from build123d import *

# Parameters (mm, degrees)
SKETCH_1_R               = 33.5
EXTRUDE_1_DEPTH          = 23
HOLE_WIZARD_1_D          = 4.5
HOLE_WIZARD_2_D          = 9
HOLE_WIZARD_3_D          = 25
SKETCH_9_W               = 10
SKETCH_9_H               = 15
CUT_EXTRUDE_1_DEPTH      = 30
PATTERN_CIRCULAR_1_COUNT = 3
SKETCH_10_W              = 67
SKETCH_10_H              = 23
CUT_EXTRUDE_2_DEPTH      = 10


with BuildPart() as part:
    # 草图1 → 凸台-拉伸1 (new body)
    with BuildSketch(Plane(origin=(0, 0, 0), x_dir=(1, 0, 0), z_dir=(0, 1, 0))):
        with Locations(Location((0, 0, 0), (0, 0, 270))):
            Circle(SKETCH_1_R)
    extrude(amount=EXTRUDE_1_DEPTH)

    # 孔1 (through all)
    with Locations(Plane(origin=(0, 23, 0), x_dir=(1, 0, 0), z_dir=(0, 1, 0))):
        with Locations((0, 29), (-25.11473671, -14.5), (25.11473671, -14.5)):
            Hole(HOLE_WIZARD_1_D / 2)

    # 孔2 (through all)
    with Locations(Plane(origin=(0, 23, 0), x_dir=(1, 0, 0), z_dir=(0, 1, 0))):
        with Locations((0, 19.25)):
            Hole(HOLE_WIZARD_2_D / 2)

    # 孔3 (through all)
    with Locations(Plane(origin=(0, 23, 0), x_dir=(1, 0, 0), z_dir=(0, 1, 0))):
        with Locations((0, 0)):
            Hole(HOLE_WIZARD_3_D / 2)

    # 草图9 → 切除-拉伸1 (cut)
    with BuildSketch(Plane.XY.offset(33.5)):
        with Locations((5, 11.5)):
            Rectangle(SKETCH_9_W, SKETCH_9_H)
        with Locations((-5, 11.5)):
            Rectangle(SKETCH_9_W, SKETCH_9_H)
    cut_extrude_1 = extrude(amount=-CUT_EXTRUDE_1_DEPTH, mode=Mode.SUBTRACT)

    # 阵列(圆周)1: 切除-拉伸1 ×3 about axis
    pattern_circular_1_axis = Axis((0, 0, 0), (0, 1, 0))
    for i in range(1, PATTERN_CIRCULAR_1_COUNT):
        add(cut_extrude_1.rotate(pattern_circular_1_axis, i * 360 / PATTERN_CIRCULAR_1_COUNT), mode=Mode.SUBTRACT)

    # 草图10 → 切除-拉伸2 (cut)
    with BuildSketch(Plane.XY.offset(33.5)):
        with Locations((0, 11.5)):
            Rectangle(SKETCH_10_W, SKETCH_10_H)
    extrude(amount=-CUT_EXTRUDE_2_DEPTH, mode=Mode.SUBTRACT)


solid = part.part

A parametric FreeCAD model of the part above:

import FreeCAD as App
import Part
import Sketcher

V = App.Vector
Q = App.Units.Quantity


def add_polygon(sketch, points):
    """Adds a closed chain of lines whose ends are joined by coincident constraints."""
    first, n = sketch.GeometryCount, len(points)
    for a, b in zip(points, points[1:] + points[:1]):
        sketch.addGeometry(Part.LineSegment(App.Vector(*a, 0), App.Vector(*b, 0)), False)
    for i in range(n):
        sketch.addConstraint(Sketcher.Constraint("Coincident", first + i, 2, first + (i + 1) % n, 1))

doc = App.newDocument("Part")
body = doc.addObject("PartDesign::Body", "Body")

sketch1 = body.newObject("Sketcher::SketchObject", "Sketch")
sketch1.AttachmentSupport = (doc.getObject("XZ_Plane"), [""])
sketch1.MapMode = "FlatFace"
sketch1.addGeometry(Part.Circle(V(0, 0, 0), V(0, 0, 1), 34), False)
sketch1.addConstraint([
    Sketcher.Constraint("Coincident", 0, 3, -1, 1),
    Sketcher.Constraint("Diameter", 0, Q("67 mm")),
])
pad1 = body.newObject("PartDesign::Pad", "Pad")
pad1.Profile = sketch1
pad1.Length = 23
pad1.Reversed = True

sketch2 = body.newObject("Sketcher::SketchObject", "Sketch001")
sketch2.AttachmentSupport = (doc.getObject("XZ_Plane"), [""])
sketch2.MapMode = "FlatFace"
sketch2.AttachmentOffset = App.Placement(V(0, 0, -23), App.Rotation())
sketch2.addGeometry([
    Part.Circle(V(0, -29, 0), V(0, 0, 1), 2.2),
    Part.Circle(V(-25.1, 14.5, 0), V(0, 0, 1), 2.2),
    Part.Circle(V(25.1, 14.5, 0), V(0, 0, 1), 2.2),
], False)
sketch2.addConstraint([
    Sketcher.Constraint("Equal", 0, 1),
    Sketcher.Constraint("Equal", 1, 2),
    Sketcher.Constraint("Symmetric", 1, 3, 2, 3, -2),
    Sketcher.Constraint("PointOnObject", 0, 3, -2),
    Sketcher.Constraint("Diameter", 0, Q("4.5 mm")),
    Sketcher.Constraint("DistanceY", 0, 3, -1, 1, Q("29 mm")),
    Sketcher.Constraint("DistanceY", -1, 1, 1, 3, Q("14.5 mm")),
    Sketcher.Constraint("DistanceX", 1, 3, -1, 1, Q("25.114737 mm")),
])
doc.recompute()
hole = body.newObject("PartDesign::Hole", "Hole")
hole.Profile = sketch2
hole.ThreadType = "None"
hole.Diameter = 4.5
hole.DepthType = "ThroughAll"
hole.Reversed = True

sketch3 = body.newObject("Sketcher::SketchObject", "Sketch002")
sketch3.AttachmentSupport = (doc.getObject("XZ_Plane"), [""])
sketch3.MapMode = "FlatFace"
sketch3.AttachmentOffset = App.Placement(V(0, 0, -23), App.Rotation())
sketch3.addGeometry(Part.Circle(V(0, -19.2, 0), V(0, 0, 1), 4.5), False)
sketch3.addConstraint([
    Sketcher.Constraint("PointOnObject", 0, 3, -2),
    Sketcher.Constraint("Diameter", 0, Q("9 mm")),
    Sketcher.Constraint("DistanceY", 0, 3, -1, 1, Q("19.25 mm")),
])
doc.recompute()
hole2 = body.newObject("PartDesign::Hole", "Hole001")
hole2.Profile = sketch3
hole2.ThreadType = "None"
hole2.Diameter = 9
hole2.DepthType = "ThroughAll"
hole2.Reversed = True

sketch4 = body.newObject("Sketcher::SketchObject", "Sketch003")
sketch4.AttachmentSupport = (doc.getObject("XZ_Plane"), [""])
sketch4.MapMode = "FlatFace"
sketch4.AttachmentOffset = App.Placement(V(0, 0, -23), App.Rotation())
sketch4.addGeometry(Part.Circle(V(0, 0, 0), V(0, 0, 1), 12), False)
sketch4.addConstraint([
    Sketcher.Constraint("Coincident", 0, 3, -1, 1),
    Sketcher.Constraint("Diameter", 0, Q("25 mm")),
])
doc.recompute()
hole3 = body.newObject("PartDesign::Hole", "Hole002")
hole3.Profile = sketch4
hole3.ThreadType = "None"
hole3.Diameter = 25
hole3.DepthType = "ThroughAll"
hole3.Reversed = True

sketch5 = body.newObject("Sketcher::SketchObject", "Sketch004")
sketch5.AttachmentSupport = (doc.getObject("XY_Plane"), [""])
sketch5.MapMode = "FlatFace"
sketch5.AttachmentOffset = App.Placement(V(0, 0, 33.5), App.Rotation())
add_polygon(sketch5, [(10, 4), (10, 19), (-10, 19), (-10, 4)])
sketch5.addConstraint([
    Sketcher.Constraint("Vertical", 0),
    Sketcher.Constraint("Horizontal", 1),
    Sketcher.Constraint("Vertical", 2),
    Sketcher.Constraint("Horizontal", 3),
    Sketcher.Constraint("DistanceX", 1, 2, 1, 1, Q("20 mm")),
    Sketcher.Constraint("DistanceY", 0, 1, 0, 2, Q("15 mm")),
    Sketcher.Constraint("DistanceX", -1, 1, 0, 2, Q("10 mm")),
    Sketcher.Constraint("DistanceY", -1, 1, 0, 2, Q("19 mm")),
])
pocket1 = body.newObject("PartDesign::Pocket", "Pocket")
pocket1.Profile = sketch5
pocket1.Length = 30
doc.recompute()

polarpattern = body.newObject("PartDesign::PolarPattern", "PolarPattern")
polarpattern.Originals = [pocket1]
polarpattern.Axis = (doc.getObject("Y_Axis"), [""])
polarpattern.Angle = 360
polarpattern.Occurrences = 3
body.Tip = polarpattern

sketch6 = body.newObject("Sketcher::SketchObject", "Sketch005")
sketch6.AttachmentSupport = (doc.getObject("XY_Plane"), [""])
sketch6.MapMode = "FlatFace"
sketch6.AttachmentOffset = App.Placement(V(0, 0, 33.5), App.Rotation())
add_polygon(sketch6, [(-34, 23), (-34, 0), (34, 0), (34, 23)])
sketch6.addConstraint([
    Sketcher.Constraint("Vertical", 0),
    Sketcher.Constraint("Horizontal", 1),
    Sketcher.Constraint("Vertical", 2),
    Sketcher.Constraint("Horizontal", 3),
    Sketcher.Constraint("Symmetric", 0, 2, 1, 2, -1, 1),
    Sketcher.Constraint("DistanceX", 1, 1, 1, 2, Q("67 mm")),
    Sketcher.Constraint("DistanceY", 0, 2, 0, 1, Q("23 mm")),
])
pocket2 = body.newObject("PartDesign::Pocket", "Pocket001")
pocket2.Profile = sketch6
pocket2.Length = 10

doc.recompute()
